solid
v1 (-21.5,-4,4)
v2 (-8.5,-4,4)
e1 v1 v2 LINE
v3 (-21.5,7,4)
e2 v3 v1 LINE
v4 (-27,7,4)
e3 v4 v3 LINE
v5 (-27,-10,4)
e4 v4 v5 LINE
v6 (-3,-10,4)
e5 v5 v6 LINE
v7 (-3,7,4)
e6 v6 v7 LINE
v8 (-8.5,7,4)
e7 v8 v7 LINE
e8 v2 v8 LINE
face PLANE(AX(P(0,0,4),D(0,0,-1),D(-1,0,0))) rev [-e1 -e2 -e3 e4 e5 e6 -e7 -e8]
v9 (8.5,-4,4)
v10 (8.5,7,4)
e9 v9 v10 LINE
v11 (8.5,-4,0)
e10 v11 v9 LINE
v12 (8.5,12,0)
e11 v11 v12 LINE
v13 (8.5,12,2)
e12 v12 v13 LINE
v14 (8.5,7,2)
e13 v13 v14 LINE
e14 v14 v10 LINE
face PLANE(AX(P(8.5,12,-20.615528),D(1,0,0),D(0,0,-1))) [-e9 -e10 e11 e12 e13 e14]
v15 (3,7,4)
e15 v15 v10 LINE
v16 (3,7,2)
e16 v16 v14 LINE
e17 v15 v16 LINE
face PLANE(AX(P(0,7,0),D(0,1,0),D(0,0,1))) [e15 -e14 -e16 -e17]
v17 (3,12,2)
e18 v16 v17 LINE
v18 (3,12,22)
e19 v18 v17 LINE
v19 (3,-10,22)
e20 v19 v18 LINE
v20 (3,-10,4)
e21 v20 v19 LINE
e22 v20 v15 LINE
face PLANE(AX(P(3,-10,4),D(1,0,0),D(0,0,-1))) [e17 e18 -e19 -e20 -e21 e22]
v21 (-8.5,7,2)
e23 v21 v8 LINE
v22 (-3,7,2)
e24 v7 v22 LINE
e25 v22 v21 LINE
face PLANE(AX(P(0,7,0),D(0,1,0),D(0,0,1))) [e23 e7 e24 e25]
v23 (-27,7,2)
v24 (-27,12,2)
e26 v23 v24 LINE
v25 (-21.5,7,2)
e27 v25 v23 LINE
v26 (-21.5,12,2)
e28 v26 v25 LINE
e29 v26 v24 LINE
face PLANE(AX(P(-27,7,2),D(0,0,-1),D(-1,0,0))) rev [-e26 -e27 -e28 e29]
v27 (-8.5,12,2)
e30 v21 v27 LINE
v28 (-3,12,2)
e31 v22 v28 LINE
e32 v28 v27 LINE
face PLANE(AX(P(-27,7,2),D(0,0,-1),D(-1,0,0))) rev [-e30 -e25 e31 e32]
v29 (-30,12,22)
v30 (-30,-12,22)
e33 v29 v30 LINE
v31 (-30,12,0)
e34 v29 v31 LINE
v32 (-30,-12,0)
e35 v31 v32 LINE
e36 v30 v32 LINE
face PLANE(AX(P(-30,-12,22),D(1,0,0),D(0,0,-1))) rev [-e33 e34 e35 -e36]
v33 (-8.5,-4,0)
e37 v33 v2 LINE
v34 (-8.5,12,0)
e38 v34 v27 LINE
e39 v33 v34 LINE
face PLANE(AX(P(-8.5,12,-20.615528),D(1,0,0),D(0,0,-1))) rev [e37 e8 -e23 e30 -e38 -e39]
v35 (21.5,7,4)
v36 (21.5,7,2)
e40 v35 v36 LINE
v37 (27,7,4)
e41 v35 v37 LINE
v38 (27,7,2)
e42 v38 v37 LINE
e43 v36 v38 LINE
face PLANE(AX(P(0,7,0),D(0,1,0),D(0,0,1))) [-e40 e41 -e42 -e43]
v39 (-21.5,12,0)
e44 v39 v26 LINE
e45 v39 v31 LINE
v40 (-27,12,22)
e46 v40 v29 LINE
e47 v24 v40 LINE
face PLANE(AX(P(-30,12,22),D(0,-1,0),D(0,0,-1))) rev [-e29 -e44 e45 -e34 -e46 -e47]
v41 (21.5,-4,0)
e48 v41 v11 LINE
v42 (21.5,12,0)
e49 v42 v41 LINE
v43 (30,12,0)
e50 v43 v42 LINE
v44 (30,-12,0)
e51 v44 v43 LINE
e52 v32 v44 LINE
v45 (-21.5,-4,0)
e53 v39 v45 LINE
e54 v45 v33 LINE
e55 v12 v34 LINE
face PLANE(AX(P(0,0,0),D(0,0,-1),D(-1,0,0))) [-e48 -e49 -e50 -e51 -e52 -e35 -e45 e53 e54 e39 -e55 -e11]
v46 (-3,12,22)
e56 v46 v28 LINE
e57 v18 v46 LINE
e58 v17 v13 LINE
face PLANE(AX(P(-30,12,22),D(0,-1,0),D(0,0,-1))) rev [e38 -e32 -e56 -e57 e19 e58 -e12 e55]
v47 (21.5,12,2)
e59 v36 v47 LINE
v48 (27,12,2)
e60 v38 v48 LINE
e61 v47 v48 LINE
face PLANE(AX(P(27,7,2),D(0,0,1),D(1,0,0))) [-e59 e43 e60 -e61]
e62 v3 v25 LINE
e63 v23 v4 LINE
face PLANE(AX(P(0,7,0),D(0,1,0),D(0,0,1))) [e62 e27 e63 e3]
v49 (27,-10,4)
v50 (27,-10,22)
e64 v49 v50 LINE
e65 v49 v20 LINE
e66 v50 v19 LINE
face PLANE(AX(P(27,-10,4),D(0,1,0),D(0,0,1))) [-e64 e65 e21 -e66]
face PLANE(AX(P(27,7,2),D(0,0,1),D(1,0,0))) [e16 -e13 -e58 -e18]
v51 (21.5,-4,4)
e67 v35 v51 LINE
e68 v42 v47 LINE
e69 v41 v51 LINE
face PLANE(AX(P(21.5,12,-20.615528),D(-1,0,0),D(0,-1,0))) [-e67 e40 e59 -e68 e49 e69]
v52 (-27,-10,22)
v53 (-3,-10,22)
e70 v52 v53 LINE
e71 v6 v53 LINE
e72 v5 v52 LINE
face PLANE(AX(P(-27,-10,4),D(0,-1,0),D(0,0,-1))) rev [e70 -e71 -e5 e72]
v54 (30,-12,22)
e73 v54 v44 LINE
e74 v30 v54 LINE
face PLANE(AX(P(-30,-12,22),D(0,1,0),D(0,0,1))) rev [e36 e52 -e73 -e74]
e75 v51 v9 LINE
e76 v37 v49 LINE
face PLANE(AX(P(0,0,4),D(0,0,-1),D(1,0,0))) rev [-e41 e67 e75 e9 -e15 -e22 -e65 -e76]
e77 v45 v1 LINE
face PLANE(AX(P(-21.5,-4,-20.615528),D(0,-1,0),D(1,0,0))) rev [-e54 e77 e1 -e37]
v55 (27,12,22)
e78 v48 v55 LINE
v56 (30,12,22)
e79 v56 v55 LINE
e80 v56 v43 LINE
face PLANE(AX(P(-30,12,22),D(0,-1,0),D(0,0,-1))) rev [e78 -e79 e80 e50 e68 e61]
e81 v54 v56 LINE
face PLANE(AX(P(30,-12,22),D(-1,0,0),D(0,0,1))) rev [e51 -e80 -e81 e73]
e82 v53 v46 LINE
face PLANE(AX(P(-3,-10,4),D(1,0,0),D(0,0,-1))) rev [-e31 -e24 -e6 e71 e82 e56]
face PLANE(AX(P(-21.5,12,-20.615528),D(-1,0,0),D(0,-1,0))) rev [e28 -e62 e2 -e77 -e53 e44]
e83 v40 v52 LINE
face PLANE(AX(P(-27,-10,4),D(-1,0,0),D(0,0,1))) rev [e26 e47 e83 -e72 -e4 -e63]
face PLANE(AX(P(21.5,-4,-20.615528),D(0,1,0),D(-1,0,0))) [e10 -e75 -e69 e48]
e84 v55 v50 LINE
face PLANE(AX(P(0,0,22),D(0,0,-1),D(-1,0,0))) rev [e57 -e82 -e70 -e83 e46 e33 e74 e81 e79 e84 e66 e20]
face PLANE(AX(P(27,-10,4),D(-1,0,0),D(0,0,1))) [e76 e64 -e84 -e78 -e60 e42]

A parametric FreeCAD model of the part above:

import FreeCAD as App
import Part
import Sketcher

V = App.Vector
Q = App.Units.Quantity


def add_polygon(sketch, points):
    """Adds a closed chain of lines whose ends are joined by coincident constraints."""
    first, n = sketch.GeometryCount, len(points)
    for a, b in zip(points, points[1:] + points[:1]):
        sketch.addGeometry(Part.LineSegment(App.Vector(*a, 0), App.Vector(*b, 0)), False)
    for i in range(n):
        sketch.addConstraint(Sketcher.Constraint("Coincident", first + i, 2, first + (i + 1) % n, 1))

doc = App.newDocument("Part")
params = doc.addObject("Spreadsheet::Sheet", "Params")
for row, (alias, value) in enumerate([
    ("sketch1_width", "60 mm"),
    ("sketch1_height", "24 mm"),
    ("pad1_length", "22 mm"),
    ("sketch2_width", "24 mm"),
    ("sketch2_height", "20 mm"),
    ("pocket1_length", "18 mm"),
    ("sketch3_width", "13 mm"),
    ("sketch3_height", "16 mm"),
    ("pocket2_length", "4 mm"),
    ("sketch4_width", "24 mm"),
    ("sketch4_height", "20 mm"),
    ("pocket3_length", "5 mm"),
], start=1):
    params.set(f"A{row}", alias)
    params.set(f"B{row}", "=" + value)
    params.setAlias(f"B{row}", alias)

body = doc.addObject("PartDesign::Body", "Body")

sketch1 = body.newObject("Sketcher::SketchObject", "Sketch")
sketch1.AttachmentSupport = (doc.getObject("XY_Plane"), [""])
sketch1.MapMode = "FlatFace"
add_polygon(sketch1, [(-30, 12), (-30, -12), (30, -12), (30, 12)])
sketch1.addConstraint([
    Sketcher.Constraint("Vertical", 0),
    Sketcher.Constraint("Horizontal", 1),
    Sketcher.Constraint("Vertical", 2),
    Sketcher.Constraint("Horizontal", 3),
    Sketcher.Constraint("Symmetric", 0, 2, 2, 2, -1, 1),
    Sketcher.Constraint("DistanceX", 1, 1, 1, 2, Q("60 mm")),
    Sketcher.Constraint("DistanceY", 0, 2, 0, 1, Q("24 mm")),
])
sketch1.setExpression("Constraints[9]", "Params.sketch1_width")
sketch1.setExpression("Constraints[10]", "Params.sketch1_height")
pad1 = body.newObject("PartDesign::Pad", "Pad")
pad1.Profile = sketch1
pad1.setExpression("Length", "Params.pad1_length")

sketch2 = body.newObject("Sketcher::SketchObject", "Sketch001")
sketch2.AttachmentSupport = (doc.getObject("XY_Plane"), [""])
sketch2.MapMode = "FlatFace"
sketch2.AttachmentOffset = App.Placement(V(0, 0, 22), App.Rotation())
add_polygon(sketch2, [(-27, 10), (-27, -10), (-3, -10), (-3, 10)])
sketch2.addConstraint([
    Sketcher.Constraint("Vertical", 0),
    Sketcher.Constraint("Horizontal", 1),
    Sketcher.Constraint("Vertical", 2),
    Sketcher.Constraint("Horizontal", 3),
    Sketcher.Constraint("DistanceX", 1, 1, 1, 2, Q("24 mm")),
    Sketcher.Constraint("DistanceY", 0, 2, 0, 1, Q("20 mm")),
    Sketcher.Constraint("DistanceX", 0, 2, -1, 1, Q("27 mm")),
    Sketcher.Constraint("DistanceY", 0, 2, -1, 1, Q("10 mm")),
])
sketch2.setExpression("Constraints[8]", "Params.sketch2_width")
sketch2.setExpression("Constraints[9]", "Params.sketch2_height")
pocket1 = body.newObject("PartDesign::Pocket", "Pocket")
pocket1.Profile = sketch2
pocket1.setExpression("Length", "Params.pocket1_length")

sketch3 = body.newObject("Sketcher::SketchObject", "Sketch002")
sketch3.AttachmentSupport = (doc.getObject("XY_Plane"), [""])
sketch3.MapMode = "FlatFace"
sketch3.AttachmentOffset = App.Placement(V(0, 0, 4), App.Rotation())
add_polygon(sketch3, [(-22, 12), (-22, -4), (-8, -4), (-8, 12)])
sketch3.addConstraint([
    Sketcher.Constraint("Vertical", 0),
    Sketcher.Constraint("Horizontal", 1),
    Sketcher.Constraint("Vertical", 2),
    Sketcher.Constraint("Horizontal", 3),
    Sketcher.Constraint("DistanceX", 1, 1, 1, 2, Q("13 mm")),
    Sketcher.Constraint("DistanceY", 0, 2, 0, 1, Q("16 mm")),
    Sketcher.Constraint("DistanceY", 0, 2, -1, 1, Q("4 mm")),
    Sketcher.Constraint("DistanceX", 0, 2, -1, 1, Q("21.5 mm")),
])
sketch3.setExpression("Constraints[8]", "Params.sketch3_width")
sketch3.setExpression("Constraints[9]", "Params.sketch3_height")
pocket2 = body.newObject("PartDesign::Pocket", "Pocket001")
pocket2.Profile = sketch3
pocket2.setExpression("Length", "Params.pocket2_length")

sketch4 = body.newObject("Sketcher::SketchObject", "Sketch003")
sketch4.AttachmentSupport = (doc.getObject("XZ_Plane"), [""])
sketch4.MapMode = "FlatFace"
sketch4.AttachmentOffset = App.Placement(V(0, 0, -12), App.Rotation())
add_polygon(sketch4, [(-27, 2), (-27, 22), (-3, 22), (-3, 2)])
sketch4.addConstraint([
    Sketcher.Constraint("Vertical", 0),
    Sketcher.Constraint("Horizontal", 1),
    Sketcher.Constraint("Vertical", 2),
    Sketcher.Constraint("Horizontal", 3),
    Sketcher.Constraint("DistanceX", 1, 1, 1, 2, Q("24 mm")),
    Sketcher.Constraint("DistanceY", 0, 1, 0, 2, Q("20 mm")),
    Sketcher.Constraint("DistanceX", 0, 2, -1, 1, Q("27 mm")),
    Sketcher.Constraint("DistanceY", -1, 1, 0, 2, Q("22 mm")),
])
sketch4.setExpression("Constraints[8]", "Params.sketch4_width")
sketch4.setExpression("Constraints[9]", "Params.sketch4_height")
pocket3 = body.newObject("PartDesign::Pocket", "Pocket002")
pocket3.Profile = sketch4
pocket3.setExpression("Length", "Params.pocket3_length")
pocket3.Reversed = True
doc.recompute()

mirrored = body.newObject("PartDesign::Mirrored", "Mirrored")
mirrored.Originals = [pocket1, pocket2, pocket3]
mirrored.MirrorPlane = (doc.getObject("YZ_Plane"), [""])
body.Tip = mirrored

doc.recompute()
